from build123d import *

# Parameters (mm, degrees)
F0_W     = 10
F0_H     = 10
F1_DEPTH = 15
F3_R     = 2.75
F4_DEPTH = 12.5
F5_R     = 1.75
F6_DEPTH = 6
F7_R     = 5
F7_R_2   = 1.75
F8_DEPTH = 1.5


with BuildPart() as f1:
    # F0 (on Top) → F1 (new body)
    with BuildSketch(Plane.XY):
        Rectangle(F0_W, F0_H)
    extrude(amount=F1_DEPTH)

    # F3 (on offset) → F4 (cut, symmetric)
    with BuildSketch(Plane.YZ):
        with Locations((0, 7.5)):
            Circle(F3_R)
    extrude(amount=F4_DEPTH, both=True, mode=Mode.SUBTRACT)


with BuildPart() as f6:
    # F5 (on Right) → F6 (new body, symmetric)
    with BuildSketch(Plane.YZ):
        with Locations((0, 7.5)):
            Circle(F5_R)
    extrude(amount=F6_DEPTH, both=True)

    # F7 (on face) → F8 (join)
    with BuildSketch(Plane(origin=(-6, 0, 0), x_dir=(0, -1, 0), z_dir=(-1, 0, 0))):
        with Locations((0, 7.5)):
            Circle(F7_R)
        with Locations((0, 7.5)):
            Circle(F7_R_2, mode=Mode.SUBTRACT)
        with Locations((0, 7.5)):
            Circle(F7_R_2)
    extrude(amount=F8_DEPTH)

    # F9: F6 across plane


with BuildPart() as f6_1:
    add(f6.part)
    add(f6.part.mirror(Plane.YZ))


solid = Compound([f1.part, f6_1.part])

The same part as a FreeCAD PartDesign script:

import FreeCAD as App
import Part
import Sketcher
Q = App.Units.Quantity

doc = App.newDocument("Part")
body = doc.addObject("PartDesign::Body", "Body")

sketch1 = doc.addObject("Sketcher::SketchObject", "Sketch")
body.addObject(sketch1)
sketch1.AttachmentSupport = (doc.XY_Plane, [""])
sketch1.MapMode = "FlatFace"
sketch1.addGeometry([
    Part.LineSegment(App.Vector(-5, 5, 0), App.Vector(-5, -5, 0)),
    Part.LineSegment(App.Vector(-5, -5, 0), App.Vector(5, -5, 0)),
    Part.LineSegment(App.Vector(5, -5, 0), App.Vector(5, 5, 0)),
    Part.LineSegment(App.Vector(5, 5, 0), App.Vector(-5, 5, 0)),
], False)
sketch1.addConstraint([
    Sketcher.Constraint("Coincident", 0, 2, 1, 1),
    Sketcher.Constraint("Coincident", 1, 2, 2, 1),
    Sketcher.Constraint("Coincident", 2, 2, 3, 1),
    Sketcher.Constraint("Coincident", 3, 2, 0, 1),
    Sketcher.Constraint("Vertical", 0),
    Sketcher.Constraint("Horizontal", 1),
    Sketcher.Constraint("Vertical", 2),
    Sketcher.Constraint("Horizontal", 3),
    Sketcher.Constraint("Symmetric", 0, 2, 2, 2, -1, 1),
    Sketcher.Constraint("Equal", 3, 0),
    Sketcher.Constraint("DistanceX", 1, 1, 1, 2, Q("10 mm")),
])
pad1 = doc.addObject("PartDesign::Pad", "Pad")
body.addObject(pad1)
pad1.Profile = sketch1
pad1.Length = 15

sketch2 = doc.addObject("Sketcher::SketchObject", "Sketch001")
body.addObject(sketch2)
sketch2.AttachmentSupport = (doc.YZ_Plane, [""])
sketch2.MapMode = "FlatFace"
sketch2.addGeometry(Part.Circle(App.Vector(0, 7.5, 0), App.Vector(0, 0, 1), 2.8), False)
sketch2.addConstraint([
    Sketcher.Constraint("PointOnObject", 0, 3, -2),
    Sketcher.Constraint("Diameter", 0, Q("5.5 mm")),
    Sketcher.Constraint("DistanceY", -1, 1, 0, 3, Q("7.5 mm")),
])
pocket1 = doc.addObject("PartDesign::Pocket", "Pocket")
body.addObject(pocket1)
pocket1.Profile = sketch2
pocket1.Length = 25
pocket1.Midplane = True
body2 = doc.addObject("PartDesign::Body", "Body001")

sketch3 = doc.addObject("Sketcher::SketchObject", "Sketch002")
body2.addObject(sketch3)
sketch3.AttachmentSupport = (doc.getObject("YZ_Plane001"), [""])
sketch3.MapMode = "FlatFace"
sketch3.addGeometry(Part.Circle(App.Vector(0, 7.5, 0), App.Vector(0, 0, 1), 1.8), False)
sketch3.addConstraint([
    Sketcher.Constraint("PointOnObject", 0, 3, -2),
    Sketcher.Constraint("Diameter", 0, Q("3.5 mm")),
    Sketcher.Constraint("DistanceY", -1, 1, 0, 3, Q("7.5 mm")),
])
pad2 = doc.addObject("PartDesign::Pad", "Pad001")
body2.addObject(pad2)
pad2.Profile = sketch3
pad2.Length = 12
pad2.Midplane = True

sketch4 = doc.addObject("Sketcher::SketchObject", "Sketch003")
body2.addObject(sketch4)
sketch4.AttachmentSupport = (doc.getObject("YZ_Plane001"), [""])
sketch4.MapMode = "FlatFace"
sketch4.AttachmentOffset = App.Placement(App.Vector(0, 0, -6), App.Rotation())
sketch4.addGeometry(Part.Circle(App.Vector(0, 8, 0), App.Vector(0, 0, 1), 5), False)
sketch4.addConstraint([
    Sketcher.Constraint("PointOnObject", 0, 3, -2),
    Sketcher.Constraint("Diameter", 0, Q("10 mm")),
    Sketcher.Constraint("DistanceY", -1, 1, 0, 3, Q("7.5 mm")),
])
pad3 = doc.addObject("PartDesign::Pad", "Pad002")
body2.addObject(pad3)
pad3.Profile = sketch4
pad3.Length = 1.5
pad3.Reversed = True
body3 = doc.addObject("PartDesign::Body", "Body002")
doc.recompute()

body3.BaseFeature = body2
doc.recompute()

mirroring = doc.addObject("Part::Mirroring", "Mirroring")
mirroring.Source = body2
mirroring.Base = App.Vector(0, 0, 0)
mirroring.Normal = App.Vector(1, 0, 0)
body4 = doc.addObject("PartDesign::Body", "Body003")
body4.BaseFeature = mirroring
boolean = doc.addObject("PartDesign::Boolean", "Boolean")
body3.addObject(boolean)
boolean.Type = "Fuse"
boolean.addObjects([body4])
doc.recompute()
mirroring.Visibility = False

doc.recompute()
